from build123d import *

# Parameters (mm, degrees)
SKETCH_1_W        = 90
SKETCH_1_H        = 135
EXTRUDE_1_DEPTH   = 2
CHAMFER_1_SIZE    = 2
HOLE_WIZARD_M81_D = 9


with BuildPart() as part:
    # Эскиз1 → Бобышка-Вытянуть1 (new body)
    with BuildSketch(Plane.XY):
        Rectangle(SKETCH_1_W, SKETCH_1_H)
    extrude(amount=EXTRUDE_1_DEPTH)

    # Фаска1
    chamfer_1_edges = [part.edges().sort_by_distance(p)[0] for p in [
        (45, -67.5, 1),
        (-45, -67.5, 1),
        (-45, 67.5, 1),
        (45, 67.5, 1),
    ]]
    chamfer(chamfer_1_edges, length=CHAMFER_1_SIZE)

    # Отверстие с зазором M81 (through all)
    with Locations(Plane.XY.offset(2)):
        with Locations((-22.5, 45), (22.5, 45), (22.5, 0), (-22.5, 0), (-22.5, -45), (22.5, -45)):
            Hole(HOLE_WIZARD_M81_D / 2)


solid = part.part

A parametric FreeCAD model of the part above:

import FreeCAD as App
import Part
import Sketcher
from FreeCAD import Vector


def edges_at(feature, points):
    """Names of the edges that pass closest to the given points."""
    edges = feature.Shape.Edges
    near = lambda p: min(range(len(edges)), key=lambda i: edges[i].distToShape(Part.Vertex(*p))[0])
    return sorted({f"Edge{near(p) + 1}" for p in points})


def add_polygon(sketch, points):
    """Adds a closed chain of lines whose ends are joined by coincident constraints."""
    first, n = sketch.GeometryCount, len(points)
    for a, b in zip(points, points[1:] + points[:1]):
        sketch.addGeometry(Part.LineSegment(App.Vector(*a, 0), App.Vector(*b, 0)), False)
    for i in range(n):
        sketch.addConstraint(Sketcher.Constraint("Coincident", first + i, 2, first + (i + 1) % n, 1))

doc = App.newDocument("Part")
body = doc.addObject("PartDesign::Body", "Body")

# Sketch on XY plane
sketch1 = body.newObject("Sketcher::SketchObject", "Sketch")
sketch1.AttachmentSupport = (doc.getObject("XY_Plane"), [""])
sketch1.MapMode = "FlatFace"
add_polygon(sketch1, [(-45, 68), (-45, -68), (45, -68), (45, 68)])  # lines 0-3
sketch1.addConstraint([
    Sketcher.Constraint("Vertical", 0),
    Sketcher.Constraint("Horizontal", 1),
    Sketcher.Constraint("Vertical", 2),
    Sketcher.Constraint("Horizontal", 3),
    Sketcher.Constraint("Symmetric", 0, 2, 2, 2, -1, 1),
    Sketcher.Constraint("DistanceX", 1, 1, 1, 2, 90.0),
    Sketcher.Constraint("DistanceY", 0, 2, 0, 1, 135.0),
])
pad1 = body.newObject("PartDesign::Pad", "Pad")
pad1.Profile = sketch1
pad1.Length = 2
doc.recompute()

chamfer = body.newObject("PartDesign::Chamfer", "Chamfer")
chamfer.Base = (pad1, edges_at(pad1, [
    (45, -67.5, 1),
    (-45, -67.5, 1),
    (-45, 67.5, 1),
    (45, 67.5, 1),
]))
chamfer.Size = 2

# Sketch on XY plane
sketch2 = body.newObject("Sketcher::SketchObject", "Sketch001")
sketch2.AttachmentSupport = (doc.getObject("XY_Plane"), [""])
sketch2.MapMode = "FlatFace"
sketch2.AttachmentOffset = App.Placement(Vector(0, 0, 2), App.Rotation())
sketch2.addGeometry([
    Part.Circle(Vector(-22.5, 45, 0), Vector(0, 0, 1), 4.5),  # 0
    Part.Circle(Vector(22.5, 45, 0), Vector(0, 0, 1), 4.5),  # 1
    Part.Circle(Vector(22.5, 0, 0), Vector(0, 0, 1), 4.5),  # 2
    Part.Circle(Vector(-22.5, 0, 0), Vector(0, 0, 1), 4.5),  # 3
    Part.Circle(Vector(-22.5, -45, 0), Vector(0, 0, 1), 4.5),  # 4
    Part.Circle(Vector(22.5, -45, 0), Vector(0, 0, 1), 4.5),  # 5
], False)
sketch2.addConstraint([
    Sketcher.Constraint("Equal", 0, 1),
    Sketcher.Constraint("Equal", 1, 2),
    Sketcher.Constraint("Equal", 2, 3),
    Sketcher.Constraint("Equal", 3, 4),
    Sketcher.Constraint("Equal", 4, 5),
    Sketcher.Constraint("Symmetric", 2, 3, 3, 3, -1, 1),
    Sketcher.Constraint("Symmetric", 1, 3, 4, 3, -1, 1),
    Sketcher.Constraint("Symmetric", 0, 3, 5, 3, -1, 1),
    Sketcher.Constraint("Symmetric", 0, 3, 1, 3, -2),
    Sketcher.Constraint("PointOnObject", 2, 3, -1),
    Sketcher.Constraint("Vertical", 1, 3, 2, 3),
    Sketcher.Constraint("Diameter", 0, 9.0),
    Sketcher.Constraint("DistanceY", -1, 1, 0, 3, 45.0),
    Sketcher.Constraint("DistanceX", 0, 3, 1, 3, 45.0),
])
doc.recompute()
hole = body.newObject("PartDesign::Hole", "Hole")
hole.Profile = sketch2
hole.ThreadType = "None"
hole.Diameter = 9
hole.DepthType = "ThroughAll"

doc.recompute()
